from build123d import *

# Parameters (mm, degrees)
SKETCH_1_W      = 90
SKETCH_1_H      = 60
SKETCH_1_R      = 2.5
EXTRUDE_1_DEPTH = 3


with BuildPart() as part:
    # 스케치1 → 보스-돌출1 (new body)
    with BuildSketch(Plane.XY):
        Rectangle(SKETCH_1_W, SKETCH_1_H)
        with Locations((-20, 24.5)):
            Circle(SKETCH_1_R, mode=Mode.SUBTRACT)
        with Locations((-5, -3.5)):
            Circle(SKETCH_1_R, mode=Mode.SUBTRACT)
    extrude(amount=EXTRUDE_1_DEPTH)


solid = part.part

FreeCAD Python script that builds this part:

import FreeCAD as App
import Part
import Sketcher
from FreeCAD import Vector

doc = App.newDocument("Part")
body = doc.addObject("PartDesign::Body", "Body")

sketch1 = body.newObject("Sketcher::SketchObject", "Sketch")
sketch1.AttachmentSupport = (doc.getObject("XY_Plane"), [""])
sketch1.MapMode = "FlatFace"
sketch1.addGeometry([
    Part.LineSegment(Vector(-45, 30, 0), Vector(-45, -30, 0)),
    Part.LineSegment(Vector(-45, -30, 0), Vector(45, -30, 0)),
    Part.LineSegment(Vector(45, -30, 0), Vector(45, 30, 0)),
    Part.LineSegment(Vector(45, 30, 0), Vector(-45, 30, 0)),
    Part.Circle(Vector(-5, -3.5, 0), Vector(0, 0, 1), 2.5),
    Part.Circle(Vector(-20, 24.5, 0), Vector(0, 0, 1), 2.5),
], False)
sketch1.addConstraint([
    Sketcher.Constraint("Coincident", 0, 2, 1, 1),
    Sketcher.Constraint("Coincident", 1, 2, 2, 1),
    Sketcher.Constraint("Coincident", 2, 2, 3, 1),
    Sketcher.Constraint("Coincident", 3, 2, 0, 1),
    Sketcher.Constraint("Vertical", 0),
    Sketcher.Constraint("Horizontal", 1),
    Sketcher.Constraint("Vertical", 2),
    Sketcher.Constraint("Horizontal", 3),
    Sketcher.Constraint("Equal", 4, 5),
    Sketcher.Constraint("Symmetric", 0, 2, 2, 2, -1, 1),
    Sketcher.Constraint("Diameter", 4, 5.0),
    Sketcher.Constraint("DistanceX", 1, 1, 1, 2, 90.0),
    Sketcher.Constraint("DistanceY", 0, 2, 0, 1, 60.0),
    Sketcher.Constraint("DistanceX", 4, 3, -1, 1, 5.0),
    Sketcher.Constraint("DistanceX", 5, 3, -1, 1, 20.0),
    Sketcher.Constraint("DistanceY", 4, 3, 5, 3, 28.0),
    Sketcher.Constraint("DistanceY", 4, 3, -1, 1, 3.5),
])
pad1 = body.newObject("PartDesign::Pad", "Pad")
pad1.Profile = sketch1
pad1.Length = 3

doc.recompute()
